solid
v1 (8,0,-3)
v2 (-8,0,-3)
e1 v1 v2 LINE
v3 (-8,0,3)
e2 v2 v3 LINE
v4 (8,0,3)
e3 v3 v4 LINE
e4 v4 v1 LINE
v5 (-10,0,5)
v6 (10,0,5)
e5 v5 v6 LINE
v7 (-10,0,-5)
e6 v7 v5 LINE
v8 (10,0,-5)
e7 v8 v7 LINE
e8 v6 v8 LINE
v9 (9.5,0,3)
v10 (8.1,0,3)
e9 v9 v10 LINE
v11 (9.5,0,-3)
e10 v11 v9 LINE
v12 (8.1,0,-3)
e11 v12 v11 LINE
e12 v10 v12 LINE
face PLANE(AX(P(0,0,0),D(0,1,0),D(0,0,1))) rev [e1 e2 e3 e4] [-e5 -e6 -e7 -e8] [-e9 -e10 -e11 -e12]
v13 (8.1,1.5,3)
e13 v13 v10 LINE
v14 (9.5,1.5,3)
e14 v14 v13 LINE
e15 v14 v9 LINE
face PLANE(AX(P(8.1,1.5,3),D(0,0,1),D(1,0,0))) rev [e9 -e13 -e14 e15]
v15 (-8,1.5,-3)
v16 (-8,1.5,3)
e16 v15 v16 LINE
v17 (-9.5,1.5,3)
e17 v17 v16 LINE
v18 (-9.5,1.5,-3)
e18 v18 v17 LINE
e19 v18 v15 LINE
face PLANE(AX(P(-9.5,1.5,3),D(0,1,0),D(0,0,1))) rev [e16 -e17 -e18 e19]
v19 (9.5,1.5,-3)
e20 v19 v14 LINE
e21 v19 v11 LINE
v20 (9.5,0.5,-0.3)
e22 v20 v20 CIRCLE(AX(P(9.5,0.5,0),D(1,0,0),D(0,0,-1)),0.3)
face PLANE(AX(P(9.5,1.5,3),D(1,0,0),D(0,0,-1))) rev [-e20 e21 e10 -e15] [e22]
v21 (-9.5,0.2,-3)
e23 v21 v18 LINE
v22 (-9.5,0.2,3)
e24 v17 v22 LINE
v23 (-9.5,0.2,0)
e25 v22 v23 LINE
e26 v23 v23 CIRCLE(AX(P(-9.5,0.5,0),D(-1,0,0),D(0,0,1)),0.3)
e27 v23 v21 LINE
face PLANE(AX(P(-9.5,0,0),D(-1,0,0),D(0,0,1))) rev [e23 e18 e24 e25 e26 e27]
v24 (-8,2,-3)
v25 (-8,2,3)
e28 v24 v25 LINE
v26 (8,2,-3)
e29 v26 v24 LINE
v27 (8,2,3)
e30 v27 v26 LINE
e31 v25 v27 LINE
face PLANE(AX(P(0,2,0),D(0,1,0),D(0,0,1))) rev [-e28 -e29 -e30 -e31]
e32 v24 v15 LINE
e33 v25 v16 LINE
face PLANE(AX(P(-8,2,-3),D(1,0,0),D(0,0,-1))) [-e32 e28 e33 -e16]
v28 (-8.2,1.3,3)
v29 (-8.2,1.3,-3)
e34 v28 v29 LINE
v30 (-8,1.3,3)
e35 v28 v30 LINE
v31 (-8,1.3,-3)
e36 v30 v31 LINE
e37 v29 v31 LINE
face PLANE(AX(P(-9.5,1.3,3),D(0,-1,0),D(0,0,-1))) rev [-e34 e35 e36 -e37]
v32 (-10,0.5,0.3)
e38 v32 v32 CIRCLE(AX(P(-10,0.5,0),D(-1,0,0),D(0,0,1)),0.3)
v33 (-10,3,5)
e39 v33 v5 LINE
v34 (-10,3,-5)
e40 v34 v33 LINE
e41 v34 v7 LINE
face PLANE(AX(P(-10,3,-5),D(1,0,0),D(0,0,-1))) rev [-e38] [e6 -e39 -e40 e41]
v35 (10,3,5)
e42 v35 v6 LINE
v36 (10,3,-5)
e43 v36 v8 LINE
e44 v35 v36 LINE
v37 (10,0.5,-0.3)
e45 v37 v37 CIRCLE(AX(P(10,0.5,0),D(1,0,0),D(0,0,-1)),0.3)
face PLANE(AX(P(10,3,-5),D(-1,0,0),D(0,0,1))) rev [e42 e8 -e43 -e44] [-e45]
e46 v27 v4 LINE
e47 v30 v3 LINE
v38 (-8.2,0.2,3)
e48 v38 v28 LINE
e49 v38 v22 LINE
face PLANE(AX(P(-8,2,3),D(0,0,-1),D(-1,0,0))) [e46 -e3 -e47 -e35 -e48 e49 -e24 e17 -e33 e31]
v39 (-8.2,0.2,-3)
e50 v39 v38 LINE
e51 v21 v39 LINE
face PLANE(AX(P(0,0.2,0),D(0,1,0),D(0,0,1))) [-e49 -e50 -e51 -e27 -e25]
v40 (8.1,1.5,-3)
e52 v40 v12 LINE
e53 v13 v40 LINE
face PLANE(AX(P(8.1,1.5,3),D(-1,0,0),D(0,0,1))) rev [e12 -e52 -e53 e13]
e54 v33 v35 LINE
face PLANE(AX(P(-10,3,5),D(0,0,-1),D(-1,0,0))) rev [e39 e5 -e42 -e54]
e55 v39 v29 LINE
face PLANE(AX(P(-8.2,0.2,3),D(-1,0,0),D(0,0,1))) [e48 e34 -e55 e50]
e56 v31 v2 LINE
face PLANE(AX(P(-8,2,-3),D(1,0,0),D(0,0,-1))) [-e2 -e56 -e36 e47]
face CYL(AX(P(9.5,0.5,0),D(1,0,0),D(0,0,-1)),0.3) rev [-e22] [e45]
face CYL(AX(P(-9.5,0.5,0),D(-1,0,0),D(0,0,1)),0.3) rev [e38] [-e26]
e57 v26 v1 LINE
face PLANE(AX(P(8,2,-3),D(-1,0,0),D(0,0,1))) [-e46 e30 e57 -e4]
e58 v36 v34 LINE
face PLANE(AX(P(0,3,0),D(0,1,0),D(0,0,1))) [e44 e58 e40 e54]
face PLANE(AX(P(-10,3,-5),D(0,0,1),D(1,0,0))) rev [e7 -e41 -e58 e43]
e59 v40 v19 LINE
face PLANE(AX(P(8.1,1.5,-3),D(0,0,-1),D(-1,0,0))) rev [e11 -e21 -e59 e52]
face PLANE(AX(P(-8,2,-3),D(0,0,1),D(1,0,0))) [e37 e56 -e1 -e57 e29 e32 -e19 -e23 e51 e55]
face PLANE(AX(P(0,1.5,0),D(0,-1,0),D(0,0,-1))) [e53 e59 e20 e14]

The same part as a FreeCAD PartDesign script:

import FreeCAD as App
import Part
import Sketcher

V = App.Vector


def add_polygon(sketch, points):
    """Adds a closed chain of lines whose ends are joined by coincident constraints."""
    first, n = sketch.GeometryCount, len(points)
    for a, b in zip(points, points[1:] + points[:1]):
        sketch.addGeometry(Part.LineSegment(App.Vector(*a, 0), App.Vector(*b, 0)), False)
    for i in range(n):
        sketch.addConstraint(Sketcher.Constraint("Coincident", first + i, 2, first + (i + 1) % n, 1))

doc = App.newDocument("Part")
body = doc.addObject("PartDesign::Body", "Body")

sketch1 = body.newObject("Sketcher::SketchObject", "Sketch")
sketch1.AttachmentSupport = (doc.getObject("XZ_Plane"), [""])
sketch1.MapMode = "FlatFace"
add_polygon(sketch1, [(-10, -5), (-10, 5), (10, 5), (10, -5)])
sketch1.addConstraint(Sketcher.Constraint("Vertical", 0))
sketch1.addConstraint(Sketcher.Constraint("Horizontal", 1))
sketch1.addConstraint(Sketcher.Constraint("Vertical", 2))
sketch1.addConstraint(Sketcher.Constraint("Horizontal", 3))
sketch1.addConstraint(Sketcher.Constraint("Symmetric", 0, 2, 2, 2, -1, 1))
sketch1.addConstraint(Sketcher.Constraint("DistanceX", 1, 1, 1, 2, 20.0))
sketch1.addConstraint(Sketcher.Constraint("DistanceY", 0, 1, 0, 2, 10.0))
pad1 = body.newObject("PartDesign::Pad", "Pad")
pad1.Profile = sketch1
pad1.Length = 3
pad1.Reversed = True

sketch2 = body.newObject("Sketcher::SketchObject", "Sketch001")
sketch2.AttachmentSupport = (doc.getObject("XZ_Plane"), [""])
sketch2.MapMode = "FlatFace"
add_polygon(sketch2, [(-8, -3), (-8, 3), (8, 3), (8, -3)])
sketch2.addConstraint(Sketcher.Constraint("Vertical", 0))
sketch2.addConstraint(Sketcher.Constraint("Horizontal", 1))
sketch2.addConstraint(Sketcher.Constraint("Vertical", 2))
sketch2.addConstraint(Sketcher.Constraint("Horizontal", 3))
sketch2.addConstraint(Sketcher.Constraint("Symmetric", 0, 2, 2, 2, -1, 1))
sketch2.addConstraint(Sketcher.Constraint("DistanceX", 1, 1, 1, 2, 16.0))
sketch2.addConstraint(Sketcher.Constraint("DistanceY", 0, 1, 0, 2, 6.0))
pocket1 = body.newObject("PartDesign::Pocket", "Pocket")
pocket1.Profile = sketch2
pocket1.Length = 2

sketch3 = body.newObject("Sketcher::SketchObject", "Sketch002")
sketch3.AttachmentSupport = (doc.getObject("YZ_Plane"), [""])
sketch3.MapMode = "FlatFace"
sketch3.AttachmentOffset = App.Placement(V(0, 0, -8), App.Rotation())
add_polygon(sketch3, [(1.5, 3), (1.3, 3), (1.3, -3), (1.5, -3)])
sketch3.addConstraint(Sketcher.Constraint("Horizontal", 0))
sketch3.addConstraint(Sketcher.Constraint("Vertical", 1))
sketch3.addConstraint(Sketcher.Constraint("Horizontal", 2))
sketch3.addConstraint(Sketcher.Constraint("Vertical", 3))
sketch3.addConstraint(Sketcher.Constraint("DistanceY", 1, 2, 1, 1, 6.0))
sketch3.addConstraint(Sketcher.Constraint("DistanceX", 0, 2, 0, 1, 0.2))
sketch3.addConstraint(Sketcher.Constraint("DistanceY", -1, 1, 0, 2, 3.0))
sketch3.addConstraint(Sketcher.Constraint("DistanceX", -1, 1, 0, 2, 1.3))
pocket2 = body.newObject("PartDesign::Pocket", "Pocket001")
pocket2.Profile = sketch3
pocket2.Length = 1.5

sketch4 = body.newObject("Sketcher::SketchObject", "Sketch003")
sketch4.AttachmentSupport = (doc.getObject("XZ_Plane"), [""])
sketch4.MapMode = "FlatFace"
sketch4.AttachmentOffset = App.Placement(V(0, 0, -1.5), App.Rotation())
add_polygon(sketch4, [(-9.5, 3), (-9.5, -3), (-8.2, -3), (-8.2, 3)])
sketch4.addConstraint(Sketcher.Constraint("Vertical", 0))
sketch4.addConstraint(Sketcher.Constraint("Horizontal", 1))
sketch4.addConstraint(Sketcher.Constraint("Vertical", 2))
sketch4.addConstraint(Sketcher.Constraint("Horizontal", 3))
sketch4.addConstraint(Sketcher.Constraint("DistanceY", 0, 2, 0, 1, 6.0))
sketch4.addConstraint(Sketcher.Constraint("DistanceX", 1, 1, 1, 2, 1.3))
sketch4.addConstraint(Sketcher.Constraint("DistanceY", 0, 2, -1, 1, 3.0))
sketch4.addConstraint(Sketcher.Constraint("DistanceX", 0, 2, -1, 1, 9.5))
pocket3 = body.newObject("PartDesign::Pocket", "Pocket002")
pocket3.Profile = sketch4
pocket3.Length = 1.3
pocket3.Reversed = True

sketch5 = body.newObject("Sketcher::SketchObject", "Sketch004")
sketch5.AttachmentSupport = (doc.getObject("YZ_Plane"), [""])
sketch5.MapMode = "FlatFace"
sketch5.AttachmentOffset = App.Placement(V(0, 0, -10), App.Rotation())
sketch5.addGeometry(Part.Circle(V(0.5, 0, 0), V(0, 0, 1), 0.3), False)
sketch5.addConstraint(Sketcher.Constraint("PointOnObject", 0, 3, -1))
sketch5.addConstraint(Sketcher.Constraint("Diameter", 0, 0.6))
sketch5.addConstraint(Sketcher.Constraint("DistanceX", -1, 1, 0, 3, 0.5))
pocket4 = body.newObject("PartDesign::Pocket", "Pocket003")
pocket4.Profile = sketch5
pocket4.Length = 0.5
pocket4.Reversed = True

sketch6 = body.newObject("Sketcher::SketchObject", "Sketch005")
sketch6.AttachmentSupport = (doc.getObject("XZ_Plane"), [""])
sketch6.MapMode = "FlatFace"
add_polygon(sketch6, [(8.1, 3), (8.1, -3), (9.5, -3), (9.5, 3)])
sketch6.addConstraint(Sketcher.Constraint("Vertical", 0))
sketch6.addConstraint(Sketcher.Constraint("Horizontal", 1))
sketch6.addConstraint(Sketcher.Constraint("Vertical", 2))
sketch6.addConstraint(Sketcher.Constraint("Horizontal", 3))
sketch6.addConstraint(Sketcher.Constraint("DistanceY", 0, 2, 0, 1, 6.0))
sketch6.addConstraint(Sketcher.Constraint("DistanceX", 1, 1, 1, 2, 1.4))
sketch6.addConstraint(Sketcher.Constraint("DistanceY", 0, 2, -1, 1, 3.0))
sketch6.addConstraint(Sketcher.Constraint("DistanceX", -1, 1, 0, 2, 8.1))
pocket5 = body.newObject("PartDesign::Pocket", "Pocket004")
pocket5.Profile = sketch6
pocket5.Length = 1.5

sketch7 = body.newObject("Sketcher::SketchObject", "Sketch006")
sketch7.AttachmentSupport = (doc.getObject("YZ_Plane"), [""])
sketch7.MapMode = "FlatFace"
sketch7.AttachmentOffset = App.Placement(V(0, 0, 9.5), App.Rotation())
sketch7.addGeometry(Part.Circle(V(0.5, 0, 0), V(0, 0, 1), 0.3), False)
sketch7.addConstraint(Sketcher.Constraint("PointOnObject", 0, 3, -1))
sketch7.addConstraint(Sketcher.Constraint("Diameter", 0, 0.6))
sketch7.addConstraint(Sketcher.Constraint("DistanceX", -1, 1, 0, 3, 0.5))
pocket6 = body.newObject("PartDesign::Pocket", "Pocket005")
pocket6.Profile = sketch7
pocket6.Length = 0.5
pocket6.Reversed = True

doc.recompute()
